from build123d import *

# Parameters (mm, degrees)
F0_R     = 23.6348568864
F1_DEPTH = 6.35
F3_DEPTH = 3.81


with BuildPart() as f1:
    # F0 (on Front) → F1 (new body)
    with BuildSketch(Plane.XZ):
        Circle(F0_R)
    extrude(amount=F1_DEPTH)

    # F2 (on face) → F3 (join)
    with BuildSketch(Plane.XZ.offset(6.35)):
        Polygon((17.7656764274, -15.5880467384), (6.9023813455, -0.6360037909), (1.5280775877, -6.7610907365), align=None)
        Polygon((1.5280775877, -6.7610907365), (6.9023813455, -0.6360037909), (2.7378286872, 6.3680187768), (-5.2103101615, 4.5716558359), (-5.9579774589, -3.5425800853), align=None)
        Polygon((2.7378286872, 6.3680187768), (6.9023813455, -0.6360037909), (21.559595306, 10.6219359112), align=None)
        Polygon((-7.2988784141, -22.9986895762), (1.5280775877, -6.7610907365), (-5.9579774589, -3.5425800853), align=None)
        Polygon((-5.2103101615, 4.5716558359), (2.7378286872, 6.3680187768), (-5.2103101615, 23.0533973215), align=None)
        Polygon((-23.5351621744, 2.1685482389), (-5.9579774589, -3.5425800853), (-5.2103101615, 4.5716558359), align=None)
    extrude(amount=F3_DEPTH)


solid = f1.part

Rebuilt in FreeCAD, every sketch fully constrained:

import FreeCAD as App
import Part
import Sketcher

V = App.Vector
Q = App.Units.Quantity


def add_polygon(sketch, points):
    """Adds a closed chain of lines whose ends are joined by coincident constraints."""
    first, n = sketch.GeometryCount, len(points)
    for a, b in zip(points, points[1:] + points[:1]):
        sketch.addGeometry(Part.LineSegment(App.Vector(*a, 0), App.Vector(*b, 0)), False)
    for i in range(n):
        sketch.addConstraint(Sketcher.Constraint("Coincident", first + i, 2, first + (i + 1) % n, 1))

doc = App.newDocument("Part")
body = doc.addObject("PartDesign::Body", "Body")

sketch1 = body.newObject("Sketcher::SketchObject", "Sketch")
sketch1.AttachmentSupport = (doc.getObject("XZ_Plane"), [""])
sketch1.MapMode = "FlatFace"
sketch1.addGeometry(Part.Circle(V(0, 0, 0), V(0, 0, 1), 24), False)
sketch1.addConstraint([
    Sketcher.Constraint("Coincident", 0, 3, -1, 1),
    Sketcher.Constraint("Diameter", 0, Q("47.269714 mm")),
])
pad1 = body.newObject("PartDesign::Pad", "Pad")
pad1.Profile = sketch1
pad1.Length = Q("0.25 in")

sketch2 = body.newObject("Sketcher::SketchObject", "Sketch001")
sketch2.AttachmentSupport = (doc.getObject("XZ_Plane"), [""])
sketch2.MapMode = "FlatFace"
sketch2.AttachmentOffset = App.Placement(V(0, 0, 0.25 * 25.4), App.Rotation())
add_polygon(sketch2, [(18, -16), (7, -1), (22, 11), (3, 6), (-5, 23), (-5, 5), (-24, 2), (-6, -4), (-7, -23), (2, -7)])
sketch2.addConstraint([
    Sketcher.Constraint("Vertical", 4),
    Sketcher.Constraint("Perpendicular", 8, 9),
    Sketcher.Constraint("Equal", 0, 3),
    Sketcher.Constraint("Equal", 1, 5),
    Sketcher.Constraint("Equal", 3, 8),
    Sketcher.Constraint("Equal", 8, 9),
    Sketcher.Constraint("Angle", 0, Q("126 deg")),
    Sketcher.Constraint("DistanceY", 4, 2, 1, 2, Q("0.2382 in")),
    Sketcher.Constraint("DistanceY", 4, 2, 4, 1, Q("18.481741 mm")),
    Sketcher.Constraint("DistanceY", 0, 2, 3, 2, Q("23.689401 mm")),
    Sketcher.Constraint("DistanceY", 6, 2, 2, 2, Q("9.910599 mm")),
    Sketcher.Constraint("DistanceX", 7, 2, 6, 2, Q("1.340901 mm")),
    Sketcher.Constraint("DistanceY", 7, 2, 8, 2, Q("16.237599 mm")),
    Sketcher.Constraint("Distance", 0, Q("18.481741 mm")),
    Sketcher.Constraint("Distance", 1, Q("18.481751 mm")),
    Sketcher.Constraint("Distance", 6, Q("18.481732 mm")),
    Sketcher.Constraint("Distance", 7, Q("19.502262 mm")),
    Sketcher.Constraint("DistanceX", -1, 1, 0, 2, Q("6.902381 mm")),
    Sketcher.Constraint("DistanceX", -1, 1, 2, 2, Q("2.737829 mm")),
    Sketcher.Constraint("DistanceY", -1, 1, 2, 2, Q("6.368019 mm")),
])
pad2 = body.newObject("PartDesign::Pad", "Pad001")
pad2.Profile = sketch2
pad2.Length = Q("0.15 in")

doc.recompute()
